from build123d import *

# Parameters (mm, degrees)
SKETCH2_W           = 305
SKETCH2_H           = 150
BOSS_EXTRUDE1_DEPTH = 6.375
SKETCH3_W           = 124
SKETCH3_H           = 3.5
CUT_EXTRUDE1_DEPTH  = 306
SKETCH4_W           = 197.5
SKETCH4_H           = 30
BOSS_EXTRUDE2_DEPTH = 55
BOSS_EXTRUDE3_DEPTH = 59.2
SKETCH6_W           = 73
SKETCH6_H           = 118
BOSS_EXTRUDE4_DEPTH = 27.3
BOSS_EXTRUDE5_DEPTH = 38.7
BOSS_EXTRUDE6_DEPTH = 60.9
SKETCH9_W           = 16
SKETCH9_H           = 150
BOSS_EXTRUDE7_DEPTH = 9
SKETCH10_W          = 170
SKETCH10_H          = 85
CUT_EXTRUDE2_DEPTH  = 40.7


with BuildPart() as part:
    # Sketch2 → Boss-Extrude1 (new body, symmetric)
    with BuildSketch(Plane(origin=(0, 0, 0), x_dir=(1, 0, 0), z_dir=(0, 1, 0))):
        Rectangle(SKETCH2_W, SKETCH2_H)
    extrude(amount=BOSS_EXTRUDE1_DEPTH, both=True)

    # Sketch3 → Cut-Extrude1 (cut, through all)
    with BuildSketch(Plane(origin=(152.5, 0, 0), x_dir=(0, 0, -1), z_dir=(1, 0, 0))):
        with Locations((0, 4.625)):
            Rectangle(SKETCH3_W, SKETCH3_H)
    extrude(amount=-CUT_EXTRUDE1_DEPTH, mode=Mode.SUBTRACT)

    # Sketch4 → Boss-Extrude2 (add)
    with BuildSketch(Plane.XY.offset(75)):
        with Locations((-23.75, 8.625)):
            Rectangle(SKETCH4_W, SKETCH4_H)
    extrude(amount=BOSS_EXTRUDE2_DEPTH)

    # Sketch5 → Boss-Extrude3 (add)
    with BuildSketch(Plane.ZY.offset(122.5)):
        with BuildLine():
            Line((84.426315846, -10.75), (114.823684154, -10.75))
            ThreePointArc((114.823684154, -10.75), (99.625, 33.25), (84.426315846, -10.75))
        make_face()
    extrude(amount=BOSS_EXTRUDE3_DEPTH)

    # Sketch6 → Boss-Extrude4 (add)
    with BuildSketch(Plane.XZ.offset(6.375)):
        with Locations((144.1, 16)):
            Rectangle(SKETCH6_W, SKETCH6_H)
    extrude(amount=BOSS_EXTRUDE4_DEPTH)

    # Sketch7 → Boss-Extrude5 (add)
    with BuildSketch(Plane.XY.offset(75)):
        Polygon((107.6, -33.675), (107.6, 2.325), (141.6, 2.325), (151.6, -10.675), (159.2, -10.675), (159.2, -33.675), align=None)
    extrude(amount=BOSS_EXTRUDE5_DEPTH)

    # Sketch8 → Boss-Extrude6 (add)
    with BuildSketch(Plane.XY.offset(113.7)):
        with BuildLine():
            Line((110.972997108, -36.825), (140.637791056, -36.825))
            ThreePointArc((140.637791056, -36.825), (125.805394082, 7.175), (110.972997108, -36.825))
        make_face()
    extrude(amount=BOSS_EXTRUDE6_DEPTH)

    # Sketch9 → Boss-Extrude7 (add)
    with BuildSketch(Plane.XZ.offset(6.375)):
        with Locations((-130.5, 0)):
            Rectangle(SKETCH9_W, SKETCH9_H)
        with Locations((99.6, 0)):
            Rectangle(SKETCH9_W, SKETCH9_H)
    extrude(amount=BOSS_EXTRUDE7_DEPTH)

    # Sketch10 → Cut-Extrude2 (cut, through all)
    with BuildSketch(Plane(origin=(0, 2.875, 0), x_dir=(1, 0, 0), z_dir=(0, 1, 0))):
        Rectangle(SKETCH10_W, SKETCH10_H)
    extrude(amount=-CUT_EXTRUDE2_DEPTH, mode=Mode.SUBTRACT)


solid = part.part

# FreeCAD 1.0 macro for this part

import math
import FreeCAD as App
import Part
import Sketcher
Q = App.Units.Quantity


def add_polygon(sketch, points):
    """Adds a closed chain of lines whose ends are joined by coincident constraints."""
    first, n = sketch.GeometryCount, len(points)
    for a, b in zip(points, points[1:] + points[:1]):
        sketch.addGeometry(Part.LineSegment(App.Vector(*a, 0), App.Vector(*b, 0)), False)
    for i in range(n):
        sketch.addConstraint(Sketcher.Constraint("Coincident", first + i, 2, first + (i + 1) % n, 1))

doc = App.newDocument("Part")
body = doc.addObject("PartDesign::Body", "Body")

sketch1 = doc.addObject("Sketcher::SketchObject", "Sketch")
body.addObject(sketch1)
sketch1.AttachmentSupport = (doc.XZ_Plane, [""])
sketch1.MapMode = "FlatFace"
add_polygon(sketch1, [(-152.5, -75), (-152.5, 75), (152.5, 75), (152.5, -75)])
sketch1.addConstraint(Sketcher.Constraint("Vertical", 0))
sketch1.addConstraint(Sketcher.Constraint("Horizontal", 1))
sketch1.addConstraint(Sketcher.Constraint("Vertical", 2))
sketch1.addConstraint(Sketcher.Constraint("Horizontal", 3))
sketch1.addConstraint(Sketcher.Constraint("Symmetric", 0, 2, 2, 2, -1, 1))
sketch1.addConstraint(Sketcher.Constraint("DistanceX", 1, 1, 1, 2, Q("305 mm")))
sketch1.addConstraint(Sketcher.Constraint("DistanceY", 0, 1, 0, 2, Q("150 mm")))
pad1 = doc.addObject("PartDesign::Pad", "Pad")
body.addObject(pad1)
pad1.Profile = sketch1
pad1.Length = 12.75
pad1.Midplane = True

sketch2 = doc.addObject("Sketcher::SketchObject", "Sketch001")
body.addObject(sketch2)
sketch2.AttachmentSupport = (doc.YZ_Plane, [""])
sketch2.MapMode = "FlatFace"
sketch2.AttachmentOffset = App.Placement(App.Vector(0, 0, 152.5), App.Rotation())
add_polygon(sketch2, [(6.375, 62), (2.875, 62), (2.875, -62), (6.375, -62)])
sketch2.addConstraint(Sketcher.Constraint("Horizontal", 0))
sketch2.addConstraint(Sketcher.Constraint("Vertical", 1))
sketch2.addConstraint(Sketcher.Constraint("Horizontal", 2))
sketch2.addConstraint(Sketcher.Constraint("Vertical", 3))
sketch2.addConstraint(Sketcher.Constraint("DistanceY", 1, 2, 1, 1, Q("124 mm")))
sketch2.addConstraint(Sketcher.Constraint("DistanceX", 0, 2, 0, 1, Q("3.5 mm")))
sketch2.addConstraint(Sketcher.Constraint("DistanceY", -1, 1, 0, 2, Q("62 mm")))
sketch2.addConstraint(Sketcher.Constraint("DistanceX", -1, 1, 0, 2, Q("2.875 mm")))
pocket1 = doc.addObject("PartDesign::Pocket", "Pocket")
body.addObject(pocket1)
pocket1.Profile = sketch2
pocket1.Type = "ThroughAll"

sketch3 = doc.addObject("Sketcher::SketchObject", "Sketch002")
body.addObject(sketch3)
sketch3.AttachmentSupport = (doc.XY_Plane, [""])
sketch3.MapMode = "FlatFace"
sketch3.AttachmentOffset = App.Placement(App.Vector(0, 0, 75), App.Rotation())
add_polygon(sketch3, [(-122.5, 23.625), (-122.5, -6.375), (75, -6.375), (75, 23.625)])
sketch3.addConstraint(Sketcher.Constraint("Vertical", 0))
sketch3.addConstraint(Sketcher.Constraint("Horizontal", 1))
sketch3.addConstraint(Sketcher.Constraint("Vertical", 2))
sketch3.addConstraint(Sketcher.Constraint("Horizontal", 3))
sketch3.addConstraint(Sketcher.Constraint("DistanceY", 0, 2, 0, 1, Q("30 mm")))
sketch3.addConstraint(Sketcher.Constraint("DistanceX", 1, 1, 1, 2, Q("197.5 mm")))
sketch3.addConstraint(Sketcher.Constraint("DistanceX", -1, 1, 1, 2, Q("75 mm")))
sketch3.addConstraint(Sketcher.Constraint("DistanceY", 0, 2, -1, 1, Q("6.375 mm")))
pad2 = doc.addObject("PartDesign::Pad", "Pad001")
body.addObject(pad2)
pad2.Profile = sketch3
pad2.Length = 55

sketch4 = doc.addObject("Sketcher::SketchObject", "Sketch003")
body.addObject(sketch4)
sketch4.AttachmentSupport = (doc.YZ_Plane, [""])
sketch4.MapMode = "FlatFace"
sketch4.AttachmentOffset = App.Placement(App.Vector(0, 0, -122.5), App.Rotation())
sketch4.addGeometry(Part.LineSegment(App.Vector(-10.75, 84.426316, 0), App.Vector(-10.75, 114.823684, 0)), False)
sketch4.addGeometry(Part.ArcOfCircle(Part.Circle(App.Vector(8.625, 99.625, 0), App.Vector(0, 0, 1), 24.625), math.radians(-141.887653), math.radians(141.887653)), False)
sketch4.addConstraint(Sketcher.Constraint("Coincident", 0, 1, 1, 1))
sketch4.addConstraint(Sketcher.Constraint("Coincident", 1, 2, 0, 2))
sketch4.addConstraint(Sketcher.Constraint("Vertical", 0))
sketch4.addConstraint(Sketcher.Constraint("Radius", 1, Q("24.625 mm")))
sketch4.addConstraint(Sketcher.Constraint("DistanceX", 0, 1, -1, 1, Q("10.75 mm")))
sketch4.addConstraint(Sketcher.Constraint("DistanceX", -1, 1, 1, 3, Q("8.625 mm")))
sketch4.addConstraint(Sketcher.Constraint("DistanceY", -1, 1, 1, 3, Q("99.625 mm")))
pad3 = doc.addObject("PartDesign::Pad", "Pad002")
body.addObject(pad3)
pad3.Profile = sketch4
pad3.Length = 59.2
pad3.Reversed = True

sketch5 = doc.addObject("Sketcher::SketchObject", "Sketch004")
body.addObject(sketch5)
sketch5.AttachmentSupport = (doc.XZ_Plane, [""])
sketch5.MapMode = "FlatFace"
sketch5.AttachmentOffset = App.Placement(App.Vector(0, 0, 6.375), App.Rotation())
add_polygon(sketch5, [(107.6, 75), (107.6, -43), (180.6, -43), (180.6, 75)])
sketch5.addConstraint(Sketcher.Constraint("Vertical", 0))
sketch5.addConstraint(Sketcher.Constraint("Horizontal", 1))
sketch5.addConstraint(Sketcher.Constraint("Vertical", 2))
sketch5.addConstraint(Sketcher.Constraint("Horizontal", 3))
sketch5.addConstraint(Sketcher.Constraint("DistanceX", 1, 1, 1, 2, Q("73 mm")))
sketch5.addConstraint(Sketcher.Constraint("DistanceY", 0, 2, 0, 1, Q("118 mm")))
sketch5.addConstraint(Sketcher.Constraint("DistanceY", 0, 2, -1, 1, Q("43 mm")))
sketch5.addConstraint(Sketcher.Constraint("DistanceX", -1, 1, 0, 2, Q("107.6 mm")))
pad4 = doc.addObject("PartDesign::Pad", "Pad003")
body.addObject(pad4)
pad4.Profile = sketch5
pad4.Length = 27.3

sketch6 = doc.addObject("Sketcher::SketchObject", "Sketch005")
body.addObject(sketch6)
sketch6.AttachmentSupport = (doc.XY_Plane, [""])
sketch6.MapMode = "FlatFace"
sketch6.AttachmentOffset = App.Placement(App.Vector(0, 0, 75), App.Rotation())
add_polygon(sketch6, [(107.6, 2.325), (107.6, -33.675), (159.2, -33.675), (159.2, -10.675), (151.6, -10.675), (141.6, 2.325)])
sketch6.addConstraint(Sketcher.Constraint("Vertical", 0))
sketch6.addConstraint(Sketcher.Constraint("Horizontal", 1))
sketch6.addConstraint(Sketcher.Constraint("Vertical", 2))
sketch6.addConstraint(Sketcher.Constraint("Horizontal", 3))
sketch6.addConstraint(Sketcher.Constraint("Horizontal", 5))
sketch6.addConstraint(Sketcher.Constraint("DistanceX", 5, 2, 5, 1, Q("34 mm")))
sketch6.addConstraint(Sketcher.Constraint("DistanceY", 0, 2, 0, 1, Q("36 mm")))
sketch6.addConstraint(Sketcher.Constraint("DistanceY", 2, 1, 2, 2, Q("23 mm")))
sketch6.addConstraint(Sketcher.Constraint("DistanceX", 1, 1, 1, 2, Q("51.6 mm")))
sketch6.addConstraint(Sketcher.Constraint("DistanceX", 3, 2, 3, 1, Q("7.6 mm")))
sketch6.addConstraint(Sketcher.Constraint("DistanceX", -1, 1, 0, 2, Q("107.6 mm")))
sketch6.addConstraint(Sketcher.Constraint("DistanceY", 0, 2, -1, 1, Q("33.675 mm")))
pad5 = doc.addObject("PartDesign::Pad", "Pad004")
body.addObject(pad5)
pad5.Profile = sketch6
pad5.Length = 38.7

sketch7 = doc.addObject("Sketcher::SketchObject", "Sketch006")
body.addObject(sketch7)
sketch7.AttachmentSupport = (doc.XY_Plane, [""])
sketch7.MapMode = "FlatFace"
sketch7.AttachmentOffset = App.Placement(App.Vector(0, 0, 113.7), App.Rotation())
sketch7.addGeometry(Part.LineSegment(App.Vector(110.972997, -36.825, 0), App.Vector(140.637791, -36.825, 0)), False)
sketch7.addGeometry(Part.ArcOfCircle(Part.Circle(App.Vector(125.805394, -17.325, 0), App.Vector(0, 0, 1), 24.5), math.radians(-52.742084), math.radians(232.742084)), False)
sketch7.addConstraint(Sketcher.Constraint("Coincident", 0, 1, 1, 2))
sketch7.addConstraint(Sketcher.Constraint("Coincident", 1, 1, 0, 2))
sketch7.addConstraint(Sketcher.Constraint("Horizontal", 0))
sketch7.addConstraint(Sketcher.Constraint("Radius", 1, Q("24.5 mm")))
sketch7.addConstraint(Sketcher.Constraint("DistanceY", 0, 1, 1, 3, Q("19.5 mm")))
sketch7.addConstraint(Sketcher.Constraint("DistanceY", 1, 3, -1, 1, Q("17.325 mm")))
sketch7.addConstraint(Sketcher.Constraint("DistanceX", -1, 1, 1, 1, Q("140.637791 mm")))
pad6 = doc.addObject("PartDesign::Pad", "Pad005")
body.addObject(pad6)
pad6.Profile = sketch7
pad6.Length = 60.9

sketch8 = doc.addObject("Sketcher::SketchObject", "Sketch007")
body.addObject(sketch8)
sketch8.AttachmentSupport = (doc.XZ_Plane, [""])
sketch8.MapMode = "FlatFace"
sketch8.AttachmentOffset = App.Placement(App.Vector(0, 0, 6.375), App.Rotation())
add_polygon(sketch8, [(-138.5, 75), (-138.5, -75), (-122.5, -75), (-122.5, 75)])
add_polygon(sketch8, [(91.6, 75), (91.6, -75), (107.6, -75), (107.6, 75)])
sketch8.addConstraint(Sketcher.Constraint("Vertical", 0))
sketch8.addConstraint(Sketcher.Constraint("Horizontal", 1))
sketch8.addConstraint(Sketcher.Constraint("Vertical", 2))
sketch8.addConstraint(Sketcher.Constraint("Horizontal", 3))
sketch8.addConstraint(Sketcher.Constraint("Vertical", 4))
sketch8.addConstraint(Sketcher.Constraint("Horizontal", 5))
sketch8.addConstraint(Sketcher.Constraint("Vertical", 6))
sketch8.addConstraint(Sketcher.Constraint("Horizontal", 7))
sketch8.addConstraint(Sketcher.Constraint("Horizontal", 1, 2, 4, 2))
sketch8.addConstraint(Sketcher.Constraint("Horizontal", 3, 2, 6, 2))
sketch8.addConstraint(Sketcher.Constraint("Equal", 3, 5))
sketch8.addConstraint(Sketcher.Constraint("DistanceX", 1, 1, 1, 2, Q("16 mm")))
sketch8.addConstraint(Sketcher.Constraint("DistanceY", 0, 2, 0, 1, Q("150 mm")))
sketch8.addConstraint(Sketcher.Constraint("DistanceY", 0, 2, -1, 1, Q("75 mm")))
sketch8.addConstraint(Sketcher.Constraint("DistanceX", 0, 2, -1, 1, Q("138.5 mm")))
sketch8.addConstraint(Sketcher.Constraint("DistanceX", -1, 1, 4, 2, Q("91.6 mm")))
pad7 = doc.addObject("PartDesign::Pad", "Pad006")
body.addObject(pad7)
pad7.Profile = sketch8
pad7.Length = 9

sketch9 = doc.addObject("Sketcher::SketchObject", "Sketch008")
body.addObject(sketch9)
sketch9.AttachmentSupport = (doc.XZ_Plane, [""])
sketch9.MapMode = "FlatFace"
sketch9.AttachmentOffset = App.Placement(App.Vector(0, 0, -2.875), App.Rotation())
add_polygon(sketch9, [(-85, -42.5), (-85, 42.5), (85, 42.5), (85, -42.5)])
sketch9.addConstraint(Sketcher.Constraint("Vertical", 0))
sketch9.addConstraint(Sketcher.Constraint("Horizontal", 1))
sketch9.addConstraint(Sketcher.Constraint("Vertical", 2))
sketch9.addConstraint(Sketcher.Constraint("Horizontal", 3))
sketch9.addConstraint(Sketcher.Constraint("Symmetric", 0, 2, 2, 2, -1, 1))
sketch9.addConstraint(Sketcher.Constraint("DistanceX", 1, 1, 1, 2, Q("170 mm")))
sketch9.addConstraint(Sketcher.Constraint("DistanceY", 0, 1, 0, 2, Q("85 mm")))
pocket2 = doc.addObject("PartDesign::Pocket", "Pocket001")
body.addObject(pocket2)
pocket2.Profile = sketch9
pocket2.Type = "ThroughAll"
pocket2.Reversed = True

doc.recompute()
